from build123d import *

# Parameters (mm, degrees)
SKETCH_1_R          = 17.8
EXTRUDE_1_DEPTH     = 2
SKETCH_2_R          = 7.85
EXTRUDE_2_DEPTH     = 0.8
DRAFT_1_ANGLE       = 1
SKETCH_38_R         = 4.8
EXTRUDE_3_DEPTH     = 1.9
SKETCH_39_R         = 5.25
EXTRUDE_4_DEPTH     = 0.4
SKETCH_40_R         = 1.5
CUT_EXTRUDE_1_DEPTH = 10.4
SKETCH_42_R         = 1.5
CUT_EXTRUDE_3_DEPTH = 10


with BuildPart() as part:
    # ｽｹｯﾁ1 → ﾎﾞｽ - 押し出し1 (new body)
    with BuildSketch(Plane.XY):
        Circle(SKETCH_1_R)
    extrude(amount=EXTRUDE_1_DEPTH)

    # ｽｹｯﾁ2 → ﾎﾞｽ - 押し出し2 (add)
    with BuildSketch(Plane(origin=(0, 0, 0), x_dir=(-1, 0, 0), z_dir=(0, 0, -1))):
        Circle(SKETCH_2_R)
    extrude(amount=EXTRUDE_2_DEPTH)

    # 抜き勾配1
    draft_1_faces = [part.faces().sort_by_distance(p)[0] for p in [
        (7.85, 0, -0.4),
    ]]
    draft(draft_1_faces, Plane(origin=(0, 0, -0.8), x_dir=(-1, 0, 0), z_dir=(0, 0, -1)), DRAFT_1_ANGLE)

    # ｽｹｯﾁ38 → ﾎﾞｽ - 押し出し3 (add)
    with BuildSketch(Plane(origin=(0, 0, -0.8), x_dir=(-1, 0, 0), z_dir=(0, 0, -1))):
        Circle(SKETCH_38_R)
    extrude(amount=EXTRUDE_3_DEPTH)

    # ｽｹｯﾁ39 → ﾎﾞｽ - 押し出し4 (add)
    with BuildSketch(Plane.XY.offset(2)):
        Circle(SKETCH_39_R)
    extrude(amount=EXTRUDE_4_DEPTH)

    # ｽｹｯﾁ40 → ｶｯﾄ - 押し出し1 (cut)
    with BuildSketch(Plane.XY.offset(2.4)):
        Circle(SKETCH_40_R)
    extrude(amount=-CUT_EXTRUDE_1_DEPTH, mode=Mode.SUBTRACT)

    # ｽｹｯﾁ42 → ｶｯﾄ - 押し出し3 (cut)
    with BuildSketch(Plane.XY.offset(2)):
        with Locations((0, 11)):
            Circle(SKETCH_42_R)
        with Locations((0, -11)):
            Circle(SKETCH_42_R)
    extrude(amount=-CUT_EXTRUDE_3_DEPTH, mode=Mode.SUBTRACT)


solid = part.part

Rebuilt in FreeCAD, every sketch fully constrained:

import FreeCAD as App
import Part
import Sketcher
Q = App.Units.Quantity


def faces_at(feature, points):
    """Names of the faces that lie closest to the given points."""
    faces = feature.Shape.Faces
    near = lambda p: min(range(len(faces)), key=lambda i: faces[i].distToShape(Part.Vertex(*p))[0])
    return sorted({f"Face{near(p) + 1}" for p in points})

doc = App.newDocument("Part")
params = doc.addObject("Spreadsheet::Sheet", "Params")
for row, (alias, value) in enumerate([
    ("sketch1_diameter", "35.6 mm"),
    ("pad1_length", "2 mm"),
    ("sketch2_diameter", "15.7 mm"),
    ("pad2_length", "0.8 mm"),
    ("draft_angle", "1 deg"),
    ("sketch3_diameter", "9.6 mm"),
    ("pad3_length", "1.9 mm"),
    ("sketch4_diameter", "10.5 mm"),
    ("pad4_length", "0.4 mm"),
    ("sketch5_diameter", "3 mm"),
    ("pocket1_length", "10.4 mm"),
    ("sketch6_diameter", "3 mm"),
    ("pocket2_length", "10 mm"),
], start=1):
    params.set(f"A{row}", alias)
    params.set(f"B{row}", "=" + value)
    params.setAlias(f"B{row}", alias)

body = doc.addObject("PartDesign::Body", "Body")

sketch1 = body.newObject("Sketcher::SketchObject", "Sketch")
sketch1.AttachmentSupport = (doc.getObject("XY_Plane"), [""])
sketch1.MapMode = "FlatFace"
sketch1.addGeometry(Part.Circle(App.Vector(0, 0, 0), App.Vector(0, 0, 1), 18), False)
sketch1.addConstraint(Sketcher.Constraint("Coincident", 0, 3, -1, 1))
sketch1.addConstraint(Sketcher.Constraint("Diameter", 0, Q("35.6 mm")))
sketch1.setExpression("Constraints[1]", "Params.sketch1_diameter")
pad1 = body.newObject("PartDesign::Pad", "Pad")
pad1.Profile = sketch1
pad1.setExpression("Length", "Params.pad1_length")

sketch2 = body.newObject("Sketcher::SketchObject", "Sketch001")
sketch2.AttachmentSupport = (doc.getObject("XY_Plane"), [""])
sketch2.MapMode = "FlatFace"
sketch2.addGeometry(Part.Circle(App.Vector(0, 0, 0), App.Vector(0, 0, 1), 8), False)
sketch2.addConstraint(Sketcher.Constraint("Coincident", 0, 3, -1, 1))
sketch2.addConstraint(Sketcher.Constraint("Diameter", 0, Q("15.7 mm")))
sketch2.setExpression("Constraints[1]", "Params.sketch2_diameter")
pad2 = body.newObject("PartDesign::Pad", "Pad001")
pad2.Profile = sketch2
pad2.setExpression("Length", "Params.pad2_length")
pad2.Reversed = True
doc.recompute()

datumplane = body.newObject("PartDesign::Plane", "DatumPlane")
datumplane.AttachmentSupport = (doc.getObject("XY_Plane"), [""])
datumplane.MapMode = "FlatFace"
datumplane.AttachmentOffset = App.Placement(App.Vector(0, 0, -0.8), App.Rotation())
draft = body.newObject("PartDesign::Draft", "Draft")
draft.Base = (pad2, faces_at(pad2, [(7.85, 0, -0.4)]))
draft.NeutralPlane = (datumplane, [""])
draft.setExpression("Angle", "Params.draft_angle")
draft.Reversed = True

sketch3 = body.newObject("Sketcher::SketchObject", "Sketch002")
sketch3.AttachmentSupport = (doc.getObject("XY_Plane"), [""])
sketch3.MapMode = "FlatFace"
sketch3.AttachmentOffset = App.Placement(App.Vector(0, 0, -0.8), App.Rotation())
sketch3.addGeometry(Part.Circle(App.Vector(0, 0, 0), App.Vector(0, 0, 1), 4.8), False)
sketch3.addConstraint(Sketcher.Constraint("Coincident", 0, 3, -1, 1))
sketch3.addConstraint(Sketcher.Constraint("Diameter", 0, Q("9.6 mm")))
sketch3.setExpression("Constraints[1]", "Params.sketch3_diameter")
pad3 = body.newObject("PartDesign::Pad", "Pad002")
pad3.Profile = sketch3
pad3.setExpression("Length", "Params.pad3_length")
pad3.Reversed = True

sketch4 = body.newObject("Sketcher::SketchObject", "Sketch003")
sketch4.AttachmentSupport = (doc.getObject("XY_Plane"), [""])
sketch4.MapMode = "FlatFace"
sketch4.AttachmentOffset = App.Placement(App.Vector(0, 0, 2), App.Rotation())
sketch4.addGeometry(Part.Circle(App.Vector(0, 0, 0), App.Vector(0, 0, 1), 5), False)
sketch4.addConstraint(Sketcher.Constraint("Coincident", 0, 3, -1, 1))
sketch4.addConstraint(Sketcher.Constraint("Diameter", 0, Q("10.5 mm")))
sketch4.setExpression("Constraints[1]", "Params.sketch4_diameter")
pad4 = body.newObject("PartDesign::Pad", "Pad003")
pad4.Profile = sketch4
pad4.setExpression("Length", "Params.pad4_length")

sketch5 = body.newObject("Sketcher::SketchObject", "Sketch004")
sketch5.AttachmentSupport = (doc.getObject("XY_Plane"), [""])
sketch5.MapMode = "FlatFace"
sketch5.AttachmentOffset = App.Placement(App.Vector(0, 0, 2.4), App.Rotation())
sketch5.addGeometry(Part.Circle(App.Vector(0, 0, 0), App.Vector(0, 0, 1), 1.5), False)
sketch5.addConstraint(Sketcher.Constraint("Coincident", 0, 3, -1, 1))
sketch5.addConstraint(Sketcher.Constraint("Diameter", 0, Q("3 mm")))
sketch5.setExpression("Constraints[1]", "Params.sketch5_diameter")
pocket1 = body.newObject("PartDesign::Pocket", "Pocket")
pocket1.Profile = sketch5
pocket1.setExpression("Length", "Params.pocket1_length")

sketch6 = body.newObject("Sketcher::SketchObject", "Sketch005")
sketch6.AttachmentSupport = (doc.getObject("XY_Plane"), [""])
sketch6.MapMode = "FlatFace"
sketch6.AttachmentOffset = App.Placement(App.Vector(0, 0, 2), App.Rotation())
sketch6.addGeometry(Part.Circle(App.Vector(0, 11, 0), App.Vector(0, 0, 1), 1.5), False)
sketch6.addGeometry(Part.Circle(App.Vector(0, -11, 0), App.Vector(0, 0, 1), 1.5), False)
sketch6.addConstraint(Sketcher.Constraint("Equal", 0, 1))
sketch6.addConstraint(Sketcher.Constraint("Symmetric", 0, 3, 1, 3, -1, 1))
sketch6.addConstraint(Sketcher.Constraint("PointOnObject", 0, 3, -2))
sketch6.addConstraint(Sketcher.Constraint("Diameter", 0, Q("3 mm")))
sketch6.addConstraint(Sketcher.Constraint("DistanceY", -1, 1, 0, 3, Q("11 mm")))
sketch6.setExpression("Constraints[3]", "Params.sketch6_diameter")
pocket2 = body.newObject("PartDesign::Pocket", "Pocket001")
pocket2.Profile = sketch6
pocket2.setExpression("Length", "Params.pocket2_length")

doc.recompute()
